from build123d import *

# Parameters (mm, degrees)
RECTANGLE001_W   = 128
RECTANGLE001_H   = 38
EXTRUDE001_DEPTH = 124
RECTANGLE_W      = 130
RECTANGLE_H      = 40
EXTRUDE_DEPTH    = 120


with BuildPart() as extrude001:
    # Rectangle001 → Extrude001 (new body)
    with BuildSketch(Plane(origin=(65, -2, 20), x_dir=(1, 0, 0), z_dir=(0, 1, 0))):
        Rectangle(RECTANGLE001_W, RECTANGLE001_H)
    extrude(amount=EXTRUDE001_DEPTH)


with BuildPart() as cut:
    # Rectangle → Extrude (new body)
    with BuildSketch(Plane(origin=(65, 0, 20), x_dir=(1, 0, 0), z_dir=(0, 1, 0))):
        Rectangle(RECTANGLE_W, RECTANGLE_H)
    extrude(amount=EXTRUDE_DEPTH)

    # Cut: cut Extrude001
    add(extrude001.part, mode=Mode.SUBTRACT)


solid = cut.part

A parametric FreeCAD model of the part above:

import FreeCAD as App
import Part
import Sketcher

doc = App.newDocument("Part")
params = doc.addObject("Spreadsheet::Sheet", "Params")
for row, (alias, value) in enumerate([
    ("sketch1_width", "128 mm"),
    ("sketch1_height", "38 mm"),
    ("pad1_length", "124 mm"),
    ("sketch2_width", "130 mm"),
    ("sketch2_height", "40 mm"),
    ("pad2_length", "120 mm"),
], start=1):
    params.set(f"A{row}", alias)
    params.set(f"B{row}", "=" + value)
    params.setAlias(f"B{row}", alias)

body = doc.addObject("PartDesign::Body", "Body")

# Sketch on XZ plane
sketch1 = body.newObject("Sketcher::SketchObject", "Sketch")
sketch1.AttachmentSupport = (doc.getObject("XZ_Plane"), [""])
sketch1.MapMode = "FlatFace"
sketch1.AttachmentOffset = App.Placement(App.Vector(0, 0, 2), App.Rotation())
sketch1.addGeometry([
    Part.LineSegment(App.Vector(1, 1, 0), App.Vector(1, 39, 0)),
    Part.LineSegment(App.Vector(1, 39, 0), App.Vector(129, 39, 0)),
    Part.LineSegment(App.Vector(129, 39, 0), App.Vector(129, 1, 0)),
    Part.LineSegment(App.Vector(129, 1, 0), App.Vector(1, 1, 0)),
], False)
sketch1.addConstraint([
    Sketcher.Constraint("Coincident", 0, 2, 1, 1),
    Sketcher.Constraint("Coincident", 1, 2, 2, 1),
    Sketcher.Constraint("Coincident", 2, 2, 3, 1),
    Sketcher.Constraint("Coincident", 3, 2, 0, 1),
    Sketcher.Constraint("Vertical", 0),
    Sketcher.Constraint("Horizontal", 1),
    Sketcher.Constraint("Vertical", 2),
    Sketcher.Constraint("Horizontal", 3),
    Sketcher.Constraint("DistanceX", 1, 1, 1, 2, 128.0),
    Sketcher.Constraint("DistanceY", 0, 1, 0, 2, 38.0),
    Sketcher.Constraint("DistanceX", -1, 1, 0, 2, 1.0),
    Sketcher.Constraint("DistanceY", -1, 1, 0, 2, 39.0),
])
sketch1.setExpression("Constraints[8]", "Params.sketch1_width")
sketch1.setExpression("Constraints[9]", "Params.sketch1_height")
pad1 = body.newObject("PartDesign::Pad", "Pad")
pad1.Profile = sketch1
pad1.setExpression("Length", "Params.pad1_length")
pad1.Reversed = True
body2 = doc.addObject("PartDesign::Body", "Body001")

# Sketch on XZ plane
sketch2 = body2.newObject("Sketcher::SketchObject", "Sketch001")
sketch2.AttachmentSupport = (doc.getObject("XZ_Plane001"), [""])
sketch2.MapMode = "FlatFace"
sketch2.addGeometry([
    Part.LineSegment(App.Vector(0, 0, 0), App.Vector(0, 40, 0)),
    Part.LineSegment(App.Vector(0, 40, 0), App.Vector(130, 40, 0)),
    Part.LineSegment(App.Vector(130, 40, 0), App.Vector(130, 0, 0)),
    Part.LineSegment(App.Vector(130, 0, 0), App.Vector(0, 0, 0)),
], False)
sketch2.addConstraint([
    Sketcher.Constraint("Coincident", 0, 2, 1, 1),
    Sketcher.Constraint("Coincident", 1, 2, 2, 1),
    Sketcher.Constraint("Coincident", 2, 2, 3, 1),
    Sketcher.Constraint("Coincident", 3, 2, 0, 1),
    Sketcher.Constraint("Vertical", 0),
    Sketcher.Constraint("Horizontal", 1),
    Sketcher.Constraint("Vertical", 2),
    Sketcher.Constraint("Horizontal", 3),
    Sketcher.Constraint("Coincident", 3, 2, -1, 1),
    Sketcher.Constraint("DistanceX", 1, 1, 1, 2, 130.0),
    Sketcher.Constraint("DistanceY", 0, 1, 0, 2, 40.0),
])
sketch2.setExpression("Constraints[9]", "Params.sketch2_width")
sketch2.setExpression("Constraints[10]", "Params.sketch2_height")
pad2 = body2.newObject("PartDesign::Pad", "Pad001")
pad2.Profile = sketch2
pad2.setExpression("Length", "Params.pad2_length")
pad2.Reversed = True
doc.recompute()

boolean = body2.newObject("PartDesign::Boolean", "Boolean")
boolean.Type = "Cut"
boolean.addObjects([body])

doc.recompute()
